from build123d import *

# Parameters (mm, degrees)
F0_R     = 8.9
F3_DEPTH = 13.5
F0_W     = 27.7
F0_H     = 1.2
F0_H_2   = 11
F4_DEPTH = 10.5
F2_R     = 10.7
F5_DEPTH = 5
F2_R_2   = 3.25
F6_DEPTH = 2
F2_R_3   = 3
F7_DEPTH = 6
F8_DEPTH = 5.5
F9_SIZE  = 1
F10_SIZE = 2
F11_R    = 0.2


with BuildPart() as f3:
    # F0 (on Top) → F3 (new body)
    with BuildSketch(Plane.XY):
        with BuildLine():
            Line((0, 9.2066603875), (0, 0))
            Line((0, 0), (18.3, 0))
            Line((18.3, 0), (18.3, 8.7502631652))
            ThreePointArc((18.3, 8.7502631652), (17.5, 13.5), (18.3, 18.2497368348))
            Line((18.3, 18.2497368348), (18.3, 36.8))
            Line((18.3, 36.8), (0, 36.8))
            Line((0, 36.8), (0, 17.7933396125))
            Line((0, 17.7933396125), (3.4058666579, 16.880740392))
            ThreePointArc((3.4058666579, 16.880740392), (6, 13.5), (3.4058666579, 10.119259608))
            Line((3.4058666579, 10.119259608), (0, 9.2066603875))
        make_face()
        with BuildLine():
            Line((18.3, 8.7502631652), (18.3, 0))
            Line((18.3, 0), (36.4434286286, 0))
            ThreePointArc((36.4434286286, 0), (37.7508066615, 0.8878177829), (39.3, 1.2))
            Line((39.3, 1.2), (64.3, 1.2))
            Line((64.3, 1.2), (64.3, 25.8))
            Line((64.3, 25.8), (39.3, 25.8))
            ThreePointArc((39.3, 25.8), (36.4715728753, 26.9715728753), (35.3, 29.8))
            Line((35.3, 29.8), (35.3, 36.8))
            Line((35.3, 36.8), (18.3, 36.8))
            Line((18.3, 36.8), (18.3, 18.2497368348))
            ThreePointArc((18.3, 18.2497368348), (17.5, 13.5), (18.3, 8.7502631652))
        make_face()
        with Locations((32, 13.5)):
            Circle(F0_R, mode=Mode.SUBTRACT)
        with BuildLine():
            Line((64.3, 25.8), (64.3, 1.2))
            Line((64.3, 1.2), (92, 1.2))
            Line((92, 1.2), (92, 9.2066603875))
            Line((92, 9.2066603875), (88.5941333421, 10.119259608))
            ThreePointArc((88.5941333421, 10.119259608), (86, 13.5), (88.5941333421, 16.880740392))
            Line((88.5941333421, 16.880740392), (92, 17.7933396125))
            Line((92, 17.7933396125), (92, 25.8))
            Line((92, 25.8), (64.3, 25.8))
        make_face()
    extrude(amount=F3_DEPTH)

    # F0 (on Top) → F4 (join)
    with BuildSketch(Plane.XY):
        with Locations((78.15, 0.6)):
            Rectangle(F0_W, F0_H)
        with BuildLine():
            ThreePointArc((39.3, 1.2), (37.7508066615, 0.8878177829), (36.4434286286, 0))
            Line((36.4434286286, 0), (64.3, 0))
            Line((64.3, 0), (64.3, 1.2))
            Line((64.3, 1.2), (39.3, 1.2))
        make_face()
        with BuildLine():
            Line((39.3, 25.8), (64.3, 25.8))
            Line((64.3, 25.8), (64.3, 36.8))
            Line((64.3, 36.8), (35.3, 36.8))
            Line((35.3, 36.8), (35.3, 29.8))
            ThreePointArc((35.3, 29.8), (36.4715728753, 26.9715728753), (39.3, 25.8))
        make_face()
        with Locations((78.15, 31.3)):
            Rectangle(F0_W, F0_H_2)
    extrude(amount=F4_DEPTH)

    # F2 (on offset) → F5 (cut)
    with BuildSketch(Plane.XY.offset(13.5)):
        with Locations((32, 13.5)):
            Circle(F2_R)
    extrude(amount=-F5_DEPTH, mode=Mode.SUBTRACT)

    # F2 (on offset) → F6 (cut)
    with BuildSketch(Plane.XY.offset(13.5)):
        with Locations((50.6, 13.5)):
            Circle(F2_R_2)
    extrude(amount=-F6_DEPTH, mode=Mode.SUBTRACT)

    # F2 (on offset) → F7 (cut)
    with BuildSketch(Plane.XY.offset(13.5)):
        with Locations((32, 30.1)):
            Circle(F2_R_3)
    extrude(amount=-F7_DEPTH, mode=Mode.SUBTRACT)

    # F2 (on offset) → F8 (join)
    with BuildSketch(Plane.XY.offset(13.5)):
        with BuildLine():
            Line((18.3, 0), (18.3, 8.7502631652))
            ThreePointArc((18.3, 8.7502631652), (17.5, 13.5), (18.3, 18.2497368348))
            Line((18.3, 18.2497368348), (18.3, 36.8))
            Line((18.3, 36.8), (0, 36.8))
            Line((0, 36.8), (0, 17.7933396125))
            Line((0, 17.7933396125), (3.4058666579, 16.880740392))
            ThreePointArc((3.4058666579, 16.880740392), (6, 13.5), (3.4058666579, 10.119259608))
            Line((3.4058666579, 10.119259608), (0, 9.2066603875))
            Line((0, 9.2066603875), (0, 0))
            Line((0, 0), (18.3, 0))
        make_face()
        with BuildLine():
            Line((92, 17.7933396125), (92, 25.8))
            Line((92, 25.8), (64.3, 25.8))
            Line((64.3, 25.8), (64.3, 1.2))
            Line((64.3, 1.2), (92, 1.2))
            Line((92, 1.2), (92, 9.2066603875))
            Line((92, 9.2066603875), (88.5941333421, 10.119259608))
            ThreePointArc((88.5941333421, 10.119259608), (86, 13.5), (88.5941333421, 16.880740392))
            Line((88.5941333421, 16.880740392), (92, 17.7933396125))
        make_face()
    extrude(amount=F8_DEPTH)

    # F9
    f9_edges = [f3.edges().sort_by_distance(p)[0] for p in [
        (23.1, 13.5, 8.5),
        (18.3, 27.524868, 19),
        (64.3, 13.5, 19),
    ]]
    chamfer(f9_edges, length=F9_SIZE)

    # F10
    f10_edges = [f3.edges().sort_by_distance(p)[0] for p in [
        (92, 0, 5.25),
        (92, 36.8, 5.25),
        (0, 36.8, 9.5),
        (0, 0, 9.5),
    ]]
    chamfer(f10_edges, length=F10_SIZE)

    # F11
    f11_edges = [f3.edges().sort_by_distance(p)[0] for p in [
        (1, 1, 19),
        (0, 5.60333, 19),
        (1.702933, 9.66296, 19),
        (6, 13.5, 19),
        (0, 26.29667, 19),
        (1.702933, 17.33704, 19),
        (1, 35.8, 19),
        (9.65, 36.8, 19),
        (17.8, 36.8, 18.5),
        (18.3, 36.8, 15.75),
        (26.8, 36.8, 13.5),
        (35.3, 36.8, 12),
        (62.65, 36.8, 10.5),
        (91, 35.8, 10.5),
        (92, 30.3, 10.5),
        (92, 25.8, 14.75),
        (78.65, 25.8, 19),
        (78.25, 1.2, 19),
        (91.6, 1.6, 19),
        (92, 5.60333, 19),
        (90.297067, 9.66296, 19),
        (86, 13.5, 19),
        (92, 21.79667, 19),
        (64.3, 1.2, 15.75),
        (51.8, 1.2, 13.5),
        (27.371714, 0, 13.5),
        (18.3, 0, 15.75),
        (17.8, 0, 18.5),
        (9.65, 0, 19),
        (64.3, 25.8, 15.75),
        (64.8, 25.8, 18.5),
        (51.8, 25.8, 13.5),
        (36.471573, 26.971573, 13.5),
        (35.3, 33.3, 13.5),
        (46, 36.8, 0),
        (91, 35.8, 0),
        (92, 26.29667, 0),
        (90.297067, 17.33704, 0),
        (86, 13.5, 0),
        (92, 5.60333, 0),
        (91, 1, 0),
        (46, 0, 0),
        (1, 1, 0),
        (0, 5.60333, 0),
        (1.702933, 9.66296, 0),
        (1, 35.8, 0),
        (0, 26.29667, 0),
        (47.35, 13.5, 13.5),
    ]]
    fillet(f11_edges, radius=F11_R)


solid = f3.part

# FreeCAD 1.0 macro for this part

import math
import FreeCAD as App
import Part
import Sketcher
from FreeCAD import Vector
Q = App.Units.Quantity


def edges_at(feature, points):
    """Names of the edges that pass closest to the given points."""
    edges = feature.Shape.Edges
    near = lambda p: min(range(len(edges)), key=lambda i: edges[i].distToShape(Part.Vertex(*p))[0])
    return sorted({f"Edge{near(p) + 1}" for p in points})

doc = App.newDocument("Part")
body = doc.addObject("PartDesign::Body", "Body")

sketch1 = doc.addObject("Sketcher::SketchObject", "Sketch")
body.addObject(sketch1)
sketch1.AttachmentSupport = (doc.XY_Plane, [""])
sketch1.MapMode = "FlatFace"
sketch1.addGeometry(Part.LineSegment(Vector(0, 9.20666, 0), Vector(0, 0, 0)), False)
sketch1.addGeometry(Part.LineSegment(Vector(0, 0, 0), Vector(36.443429, 0, 0)), False)
sketch1.addGeometry(Part.ArcOfCircle(Part.Circle(Vector(39.3, -2.8, 0), Vector(0, 0, 1), 4), math.radians(90), math.radians(135.572996)), False)
sketch1.addGeometry(Part.LineSegment(Vector(39.3, 1.2, 0), Vector(92, 1.2, 0)), False)
sketch1.addGeometry(Part.LineSegment(Vector(92, 1.2, 0), Vector(92, 9.20666, 0)), False)
sketch1.addGeometry(Part.LineSegment(Vector(92, 9.20666, 0), Vector(88.594133, 10.11926, 0)), False)
sketch1.addGeometry(Part.ArcOfCircle(Part.Circle(Vector(89.5, 13.5, 0), Vector(0, 0, 1), 3.5), math.radians(105), math.radians(255)), False)
sketch1.addGeometry(Part.LineSegment(Vector(88.594133, 16.88074, 0), Vector(92, 17.79334, 0)), False)
sketch1.addGeometry(Part.LineSegment(Vector(92, 17.79334, 0), Vector(92, 25.8, 0)), False)
sketch1.addGeometry(Part.LineSegment(Vector(92, 25.8, 0), Vector(39.3, 25.8, 0)), False)
sketch1.addGeometry(Part.ArcOfCircle(Part.Circle(Vector(39.3, 29.8, 0), Vector(0, 0, 1), 4), math.radians(180), math.radians(270)), False)
sketch1.addGeometry(Part.LineSegment(Vector(35.3, 29.8, 0), Vector(35.3, 36.8, 0)), False)
sketch1.addGeometry(Part.LineSegment(Vector(35.3, 36.8, 0), Vector(0, 36.8, 0)), False)
sketch1.addGeometry(Part.LineSegment(Vector(0, 36.8, 0), Vector(0, 17.79334, 0)), False)
sketch1.addGeometry(Part.LineSegment(Vector(0, 17.79334, 0), Vector(3.405867, 16.88074, 0)), False)
sketch1.addGeometry(Part.ArcOfCircle(Part.Circle(Vector(2.5, 13.5, 0), Vector(0, 0, 1), 3.5), math.radians(-75), math.radians(75)), False)
sketch1.addGeometry(Part.LineSegment(Vector(3.405867, 10.11926, 0), Vector(0, 9.20666, 0)), False)
sketch1.addGeometry(Part.Circle(Vector(32, 13.5, 0), Vector(0, 0, 1), 8.9), False)
sketch1.addConstraint(Sketcher.Constraint("Coincident", 0, 2, 1, 1))
sketch1.addConstraint(Sketcher.Constraint("Coincident", 1, 2, 2, 2))
sketch1.addConstraint(Sketcher.Constraint("Tangent", 2, 1, 3, 1))
sketch1.addConstraint(Sketcher.Constraint("Coincident", 3, 2, 4, 1))
sketch1.addConstraint(Sketcher.Constraint("Coincident", 4, 2, 5, 1))
sketch1.addConstraint(Sketcher.Constraint("Tangent", 5, 2, 6, 2))
sketch1.addConstraint(Sketcher.Constraint("Tangent", 6, 1, 7, 1))
sketch1.addConstraint(Sketcher.Constraint("Coincident", 7, 2, 8, 1))
sketch1.addConstraint(Sketcher.Constraint("Coincident", 8, 2, 9, 1))
sketch1.addConstraint(Sketcher.Constraint("Tangent", 9, 2, 10, 2))
sketch1.addConstraint(Sketcher.Constraint("Tangent", 10, 1, 11, 1))
sketch1.addConstraint(Sketcher.Constraint("Coincident", 11, 2, 12, 1))
sketch1.addConstraint(Sketcher.Constraint("Coincident", 12, 2, 13, 1))
sketch1.addConstraint(Sketcher.Constraint("Coincident", 13, 2, 14, 1))
sketch1.addConstraint(Sketcher.Constraint("Tangent", 14, 2, 15, 2))
sketch1.addConstraint(Sketcher.Constraint("Tangent", 15, 1, 16, 1))
sketch1.addConstraint(Sketcher.Constraint("Coincident", 16, 2, 0, 1))
sketch1.addConstraint(Sketcher.Constraint("Vertical", 0))
sketch1.addConstraint(Sketcher.Constraint("Horizontal", 1))
sketch1.addConstraint(Sketcher.Constraint("Horizontal", 3))
sketch1.addConstraint(Sketcher.Constraint("Vertical", 4))
sketch1.addConstraint(Sketcher.Constraint("Vertical", 8))
sketch1.addConstraint(Sketcher.Constraint("Horizontal", 9))
sketch1.addConstraint(Sketcher.Constraint("Vertical", 11))
sketch1.addConstraint(Sketcher.Constraint("Horizontal", 12))
sketch1.addConstraint(Sketcher.Constraint("Vertical", 13))
sketch1.addConstraint(Sketcher.Constraint("Coincident", 0, 2, -1, 1))
sketch1.addConstraint(Sketcher.Constraint("Equal", 2, 10))
sketch1.addConstraint(Sketcher.Constraint("Equal", 6, 15))
sketch1.addConstraint(Sketcher.Constraint("PointOnObject", 12, 2, -2))
sketch1.addConstraint(Sketcher.Constraint("Parallel", 5, 14))
sketch1.addConstraint(Sketcher.Constraint("Parallel", 7, 16))
sketch1.addConstraint(Sketcher.Constraint("Horizontal", 6, 3, 15, 3))
sketch1.addConstraint(Sketcher.Constraint("Horizontal", 15, 3, 17, 3))
sketch1.addConstraint(Sketcher.Constraint("Horizontal", 7, 2, 13, 2))
sketch1.addConstraint(Sketcher.Constraint("Horizontal", 6, 1, 14, 2))
sketch1.addConstraint(Sketcher.Constraint("Horizontal", 4, 2, 16, 2))
sketch1.addConstraint(Sketcher.Constraint("Vertical", 2, 3, 10, 3))
sketch1.addConstraint(Sketcher.Constraint("Equal", 4, 8))
sketch1.addConstraint(Sketcher.Constraint("Radius", 2, Q("4 mm")))
sketch1.addConstraint(Sketcher.Constraint("Diameter", 17, Q("17.8 mm")))
sketch1.addConstraint(Sketcher.Constraint("Radius", 6, Q("3.5 mm")))
sketch1.addConstraint(Sketcher.Constraint("DistanceY", 11, 1, 11, 2, Q("7 mm")))
sketch1.addConstraint(Sketcher.Constraint("Angle", 5, Q("165 deg")))
sketch1.addConstraint(Sketcher.Constraint("DistanceX", 3, 1, 3, 2, Q("52.7 mm")))
sketch1.addConstraint(Sketcher.Constraint("DistanceX", 12, 2, 12, 1, Q("35.3 mm")))
sketch1.addConstraint(Sketcher.Constraint("DistanceX", -1, 1, 17, 3, Q("32 mm")))
sketch1.addConstraint(Sketcher.Constraint("DistanceX", 15, 3, 6, 3, Q("87 mm")))
sketch1.addConstraint(Sketcher.Constraint("DistanceY", 2, 3, -1, 1, Q("2.8 mm")))
sketch1.addConstraint(Sketcher.Constraint("DistanceY", -1, 1, 6, 3, Q("13.5 mm")))
pad1 = doc.addObject("PartDesign::Pad", "Pad")
body.addObject(pad1)
pad1.Profile = sketch1
pad1.Length = 13.5

sketch2 = doc.addObject("Sketcher::SketchObject", "Sketch001")
body.addObject(sketch2)
sketch2.AttachmentSupport = (doc.XY_Plane, [""])
sketch2.MapMode = "FlatFace"
sketch2.addGeometry(Part.LineSegment(Vector(92, 0, 0), Vector(92, 1.2, 0)), False)
sketch2.addGeometry(Part.LineSegment(Vector(92, 1.2, 0), Vector(39.3, 1.2, 0)), False)
sketch2.addGeometry(Part.ArcOfCircle(Part.Circle(Vector(39.3, -2.8, 0), Vector(0, 0, 1), 4), math.radians(90), math.radians(135.572996)), False)
sketch2.addGeometry(Part.LineSegment(Vector(36.443429, 0, 0), Vector(92, 0, 0)), False)
sketch2.addGeometry(Part.LineSegment(Vector(39.3, 25.8, 0), Vector(92, 25.8, 0)), False)
sketch2.addGeometry(Part.LineSegment(Vector(92, 25.8, 0), Vector(92, 36.8, 0)), False)
sketch2.addGeometry(Part.LineSegment(Vector(92, 36.8, 0), Vector(35.3, 36.8, 0)), False)
sketch2.addGeometry(Part.LineSegment(Vector(35.3, 36.8, 0), Vector(35.3, 29.8, 0)), False)
sketch2.addGeometry(Part.ArcOfCircle(Part.Circle(Vector(39.3, 29.8, 0), Vector(0, 0, 1), 4), math.radians(180), math.radians(270)), False)
sketch2.addConstraint(Sketcher.Constraint("Coincident", 0, 2, 1, 1))
sketch2.addConstraint(Sketcher.Constraint("Tangent", 1, 2, 2, 1))
sketch2.addConstraint(Sketcher.Constraint("Coincident", 2, 2, 3, 1))
sketch2.addConstraint(Sketcher.Constraint("Coincident", 3, 2, 0, 1))
sketch2.addConstraint(Sketcher.Constraint("Coincident", 4, 2, 5, 1))
sketch2.addConstraint(Sketcher.Constraint("Coincident", 5, 2, 6, 1))
sketch2.addConstraint(Sketcher.Constraint("Coincident", 6, 2, 7, 1))
sketch2.addConstraint(Sketcher.Constraint("Tangent", 7, 2, 8, 1))
sketch2.addConstraint(Sketcher.Constraint("Tangent", 8, 2, 4, 1))
sketch2.addConstraint(Sketcher.Constraint("Vertical", 0))
sketch2.addConstraint(Sketcher.Constraint("Horizontal", 1))
sketch2.addConstraint(Sketcher.Constraint("Horizontal", 3))
sketch2.addConstraint(Sketcher.Constraint("Horizontal", 4))
sketch2.addConstraint(Sketcher.Constraint("Vertical", 5))
sketch2.addConstraint(Sketcher.Constraint("Horizontal", 6))
sketch2.addConstraint(Sketcher.Constraint("Vertical", 7))
sketch2.addConstraint(Sketcher.Constraint("Equal", 2, 8))
sketch2.addConstraint(Sketcher.Constraint("PointOnObject", 2, 2, -1))
sketch2.addConstraint(Sketcher.Constraint("Vertical", 2, 3, 8, 3))
sketch2.addConstraint(Sketcher.Constraint("Vertical", 3, 2, 4, 2))
sketch2.addConstraint(Sketcher.Constraint("Radius", 2, Q("4 mm")))
sketch2.addConstraint(Sketcher.Constraint("DistanceY", 5, 1, 5, 2, Q("11 mm")))
sketch2.addConstraint(Sketcher.Constraint("DistanceX", 1, 2, 1, 1, Q("52.7 mm")))
sketch2.addConstraint(Sketcher.Constraint("DistanceY", 0, 1, 0, 2, Q("1.2 mm")))
sketch2.addConstraint(Sketcher.Constraint("DistanceX", -1, 1, 0, 2, Q("92 mm")))
sketch2.addConstraint(Sketcher.Constraint("DistanceY", -1, 1, 8, 3, Q("29.8 mm")))
pad2 = doc.addObject("PartDesign::Pad", "Pad001")
body.addObject(pad2)
pad2.Profile = sketch2
pad2.Length = 10.5

sketch3 = doc.addObject("Sketcher::SketchObject", "Sketch002")
body.addObject(sketch3)
sketch3.AttachmentSupport = (doc.XY_Plane, [""])
sketch3.MapMode = "FlatFace"
sketch3.AttachmentOffset = App.Placement(Vector(0, 0, 13.5), App.Rotation())
sketch3.addGeometry(Part.Circle(Vector(32, 13.5, 0), Vector(0, 0, 1), 10.7), False)
sketch3.addConstraint(Sketcher.Constraint("Diameter", 0, Q("21.4 mm")))
sketch3.addConstraint(Sketcher.Constraint("DistanceX", -1, 1, 0, 3, Q("32 mm")))
sketch3.addConstraint(Sketcher.Constraint("DistanceY", -1, 1, 0, 3, Q("13.5 mm")))
pocket1 = doc.addObject("PartDesign::Pocket", "Pocket")
body.addObject(pocket1)
pocket1.Profile = sketch3
pocket1.Length = 5

sketch4 = doc.addObject("Sketcher::SketchObject", "Sketch003")
body.addObject(sketch4)
sketch4.AttachmentSupport = (doc.XY_Plane, [""])
sketch4.MapMode = "FlatFace"
sketch4.AttachmentOffset = App.Placement(Vector(0, 0, 13.5), App.Rotation())
sketch4.addGeometry(Part.Circle(Vector(50.6, 13.5, 0), Vector(0, 0, 1), 3.25), False)
sketch4.addConstraint(Sketcher.Constraint("Diameter", 0, Q("6.5 mm")))
sketch4.addConstraint(Sketcher.Constraint("DistanceX", -1, 1, 0, 3, Q("50.6 mm")))
sketch4.addConstraint(Sketcher.Constraint("DistanceY", -1, 1, 0, 3, Q("13.5 mm")))
pocket2 = doc.addObject("PartDesign::Pocket", "Pocket001")
body.addObject(pocket2)
pocket2.Profile = sketch4
pocket2.Length = 2

sketch5 = doc.addObject("Sketcher::SketchObject", "Sketch004")
body.addObject(sketch5)
sketch5.AttachmentSupport = (doc.XY_Plane, [""])
sketch5.MapMode = "FlatFace"
sketch5.AttachmentOffset = App.Placement(Vector(0, 0, 13.5), App.Rotation())
sketch5.addGeometry(Part.Circle(Vector(32, 30.1, 0), Vector(0, 0, 1), 3), False)
sketch5.addConstraint(Sketcher.Constraint("Diameter", 0, Q("6 mm")))
sketch5.addConstraint(Sketcher.Constraint("DistanceX", -1, 1, 0, 3, Q("32 mm")))
sketch5.addConstraint(Sketcher.Constraint("DistanceY", -1, 1, 0, 3, Q("30.1 mm")))
pocket3 = doc.addObject("PartDesign::Pocket", "Pocket002")
body.addObject(pocket3)
pocket3.Profile = sketch5
pocket3.Length = 6

sketch6 = doc.addObject("Sketcher::SketchObject", "Sketch005")
body.addObject(sketch6)
sketch6.AttachmentSupport = (doc.XY_Plane, [""])
sketch6.MapMode = "FlatFace"
sketch6.AttachmentOffset = App.Placement(Vector(0, 0, 13.5), App.Rotation())
sketch6.addGeometry(Part.LineSegment(Vector(18.3, 0, 0), Vector(18.3, 8.750263, 0)), False)
sketch6.addGeometry(Part.ArcOfCircle(Part.Circle(Vector(32, 13.5, 0), Vector(0, 0, 1), 14.5), math.radians(160.878767), math.radians(199.121233)), False)
sketch6.addGeometry(Part.LineSegment(Vector(18.3, 18.249737, 0), Vector(18.3, 36.8, 0)), False)
sketch6.addGeometry(Part.LineSegment(Vector(18.3, 36.8, 0), Vector(0, 36.8, 0)), False)
sketch6.addGeometry(Part.LineSegment(Vector(0, 36.8, 0), Vector(0, 17.79334, 0)), False)
sketch6.addGeometry(Part.LineSegment(Vector(0, 17.79334, 0), Vector(3.405867, 16.88074, 0)), False)
sketch6.addGeometry(Part.ArcOfCircle(Part.Circle(Vector(2.5, 13.5, 0), Vector(0, 0, 1), 3.5), math.radians(-75), math.radians(75)), False)
sketch6.addGeometry(Part.LineSegment(Vector(3.405867, 10.11926, 0), Vector(0, 9.20666, 0)), False)
sketch6.addGeometry(Part.LineSegment(Vector(0, 9.20666, 0), Vector(0, 0, 0)), False)
sketch6.addGeometry(Part.LineSegment(Vector(0, 0, 0), Vector(18.3, 0, 0)), False)
sketch6.addGeometry(Part.LineSegment(Vector(92, 17.79334, 0), Vector(92, 25.8, 0)), False)
sketch6.addGeometry(Part.LineSegment(Vector(92, 25.8, 0), Vector(64.3, 25.8, 0)), False)
sketch6.addGeometry(Part.LineSegment(Vector(64.3, 25.8, 0), Vector(64.3, 1.2, 0)), False)
sketch6.addGeometry(Part.LineSegment(Vector(64.3, 1.2, 0), Vector(92, 1.2, 0)), False)
sketch6.addGeometry(Part.LineSegment(Vector(92, 1.2, 0), Vector(92, 9.20666, 0)), False)
sketch6.addGeometry(Part.LineSegment(Vector(92, 9.20666, 0), Vector(88.594133, 10.11926, 0)), False)
sketch6.addGeometry(Part.ArcOfCircle(Part.Circle(Vector(89.5, 13.5, 0), Vector(0, 0, 1), 3.5), math.radians(105), math.radians(255)), False)
sketch6.addGeometry(Part.LineSegment(Vector(88.594133, 16.88074, 0), Vector(92, 17.79334, 0)), False)
sketch6.addConstraint(Sketcher.Constraint("Coincident", 0, 2, 1, 2))
sketch6.addConstraint(Sketcher.Constraint("Coincident", 1, 1, 2, 1))
sketch6.addConstraint(Sketcher.Constraint("Coincident", 2, 2, 3, 1))
sketch6.addConstraint(Sketcher.Constraint("Coincident", 3, 2, 4, 1))
sketch6.addConstraint(Sketcher.Constraint("Coincident", 4, 2, 5, 1))
sketch6.addConstraint(Sketcher.Constraint("Tangent", 5, 2, 6, 2))
sketch6.addConstraint(Sketcher.Constraint("Tangent", 6, 1, 7, 1))
sketch6.addConstraint(Sketcher.Constraint("Coincident", 7, 2, 8, 1))
sketch6.addConstraint(Sketcher.Constraint("Coincident", 8, 2, 9, 1))
sketch6.addConstraint(Sketcher.Constraint("Coincident", 9, 2, 0, 1))
sketch6.addConstraint(Sketcher.Constraint("Coincident", 10, 2, 11, 1))
sketch6.addConstraint(Sketcher.Constraint("Coincident", 11, 2, 12, 1))
sketch6.addConstraint(Sketcher.Constraint("Coincident", 12, 2, 13, 1))
sketch6.addConstraint(Sketcher.Constraint("Coincident", 13, 2, 14, 1))
sketch6.addConstraint(Sketcher.Constraint("Coincident", 14, 2, 15, 1))
sketch6.addConstraint(Sketcher.Constraint("Tangent", 15, 2, 16, 2))
sketch6.addConstraint(Sketcher.Constraint("Tangent", 16, 1, 17, 1))
sketch6.addConstraint(Sketcher.Constraint("Coincident", 17, 2, 10, 1))
sketch6.addConstraint(Sketcher.Constraint("Vertical", 0))
sketch6.addConstraint(Sketcher.Constraint("Vertical", 2))
sketch6.addConstraint(Sketcher.Constraint("Horizontal", 3))
sketch6.addConstraint(Sketcher.Constraint("Vertical", 4))
sketch6.addConstraint(Sketcher.Constraint("Vertical", 8))
sketch6.addConstraint(Sketcher.Constraint("Horizontal", 9))
sketch6.addConstraint(Sketcher.Constraint("Vertical", 10))
sketch6.addConstraint(Sketcher.Constraint("Horizontal", 11))
sketch6.addConstraint(Sketcher.Constraint("Vertical", 12))
sketch6.addConstraint(Sketcher.Constraint("Horizontal", 13))
sketch6.addConstraint(Sketcher.Constraint("Vertical", 14))
sketch6.addConstraint(Sketcher.Constraint("Coincident", 8, 2, -1, 1))
sketch6.addConstraint(Sketcher.Constraint("Equal", 6, 16))
sketch6.addConstraint(Sketcher.Constraint("PointOnObject", 3, 2, -2))
sketch6.addConstraint(Sketcher.Constraint("Parallel", 5, 15))
sketch6.addConstraint(Sketcher.Constraint("Parallel", 7, 17))
sketch6.addConstraint(Sketcher.Constraint("Horizontal", 1, 3, 6, 3))
sketch6.addConstraint(Sketcher.Constraint("Horizontal", 6, 3, 16, 3))
sketch6.addConstraint(Sketcher.Constraint("Horizontal", 7, 2, 14, 2))
sketch6.addConstraint(Sketcher.Constraint("Horizontal", 6, 1, 15, 2))
sketch6.addConstraint(Sketcher.Constraint("Horizontal", 4, 2, 17, 2))
sketch6.addConstraint(Sketcher.Constraint("Vertical", 0, 2, 1, 1))
sketch6.addConstraint(Sketcher.Constraint("Equal", 10, 14))
sketch6.addConstraint(Sketcher.Constraint("Radius", 1, Q("14.5 mm")))
sketch6.addConstraint(Sketcher.Constraint("Radius", 6, Q("3.5 mm")))
sketch6.addConstraint(Sketcher.Constraint("Angle", 5, Q("-15 deg")))
sketch6.addConstraint(Sketcher.Constraint("DistanceX", 3, 2, 3, 1, Q("18.3 mm")))
sketch6.addConstraint(Sketcher.Constraint("DistanceX", 11, 2, 11, 1, Q("27.7 mm")))
sketch6.addConstraint(Sketcher.Constraint("DistanceY", 12, 2, 12, 1, Q("24.6 mm")))
sketch6.addConstraint(Sketcher.Constraint("DistanceX", -1, 1, 1, 3, Q("32 mm")))
sketch6.addConstraint(Sketcher.Constraint("DistanceX", -1, 1, 10, 2, Q("92 mm")))
sketch6.addConstraint(Sketcher.Constraint("DistanceX", 6, 3, 16, 3, Q("87 mm")))
sketch6.addConstraint(Sketcher.Constraint("DistanceY", 10, 2, 2, 2, Q("11 mm")))
sketch6.addConstraint(Sketcher.Constraint("DistanceY", -1, 1, 1, 3, Q("13.5 mm")))
pad3 = doc.addObject("PartDesign::Pad", "Pad002")
body.addObject(pad3)
pad3.Profile = sketch6
pad3.Length = 5.5
doc.recompute()

chamfer = doc.addObject("PartDesign::Chamfer", "Chamfer")
body.addObject(chamfer)
chamfer.Base = (pad3, edges_at(pad3, [(23.1, 13.5, 8.5), (18.3, 27.525, 19), (64.3, 13.5, 19)]))
chamfer.Size = 1
doc.recompute()

chamfer2 = doc.addObject("PartDesign::Chamfer", "Chamfer001")
body.addObject(chamfer2)
chamfer2.Base = (chamfer, edges_at(chamfer, [
    (92, 0, 5.25),
    (92, 36.8, 5.25),
    (0, 36.8, 9.5),
    (0, 0, 9.5),
]))
chamfer2.Size = 2
doc.recompute()

fillet = doc.addObject("PartDesign::Fillet", "Fillet")
body.addObject(fillet)
fillet.Base = (chamfer2, edges_at(chamfer2, [
    (1, 1, 19),
    (0, 5.603, 19),
    (1.703, 9.663, 19),
    (6, 13.5, 19),
    (0, 26.297, 19),
    (1.703, 17.337, 19),
    (1, 35.8, 19),
    (9.65, 36.8, 19),
    (17.8, 36.8, 18.5),
    (18.3, 36.8, 15.75),
    (26.8, 36.8, 13.5),
    (35.3, 36.8, 12),
    (62.65, 36.8, 10.5),
    (91, 35.8, 10.5),
    (92, 30.3, 10.5),
    (92, 25.8, 14.75),
    (78.65, 25.8, 19),
    (78.25, 1.2, 19),
    (91.6, 1.6, 19),
    (92, 5.603, 19),
    (90.297, 9.663, 19),
    (86, 13.5, 19),
    (92, 21.797, 19),
    (64.3, 1.2, 15.75),
    (51.8, 1.2, 13.5),
    (27.372, 0, 13.5),
    (18.3, 0, 15.75),
    (17.8, 0, 18.5),
    (9.65, 0, 19),
    (64.3, 25.8, 15.75),
    (64.8, 25.8, 18.5),
    (51.8, 25.8, 13.5),
    (36.472, 26.972, 13.5),
    (35.3, 33.3, 13.5),
    (46, 36.8, 0),
    (91, 35.8, 0),
    (92, 26.297, 0),
    (90.297, 17.337, 0),
    (86, 13.5, 0),
    (92, 5.603, 0),
    (91, 1, 0),
    (46, 0, 0),
    (1, 1, 0),
    (0, 5.603, 0),
    (1.703, 9.663, 0),
    (1, 35.8, 0),
    (0, 26.297, 0),
    (47.35, 13.5, 13.5),
]))
fillet.Radius = 0.2

doc.recompute()
